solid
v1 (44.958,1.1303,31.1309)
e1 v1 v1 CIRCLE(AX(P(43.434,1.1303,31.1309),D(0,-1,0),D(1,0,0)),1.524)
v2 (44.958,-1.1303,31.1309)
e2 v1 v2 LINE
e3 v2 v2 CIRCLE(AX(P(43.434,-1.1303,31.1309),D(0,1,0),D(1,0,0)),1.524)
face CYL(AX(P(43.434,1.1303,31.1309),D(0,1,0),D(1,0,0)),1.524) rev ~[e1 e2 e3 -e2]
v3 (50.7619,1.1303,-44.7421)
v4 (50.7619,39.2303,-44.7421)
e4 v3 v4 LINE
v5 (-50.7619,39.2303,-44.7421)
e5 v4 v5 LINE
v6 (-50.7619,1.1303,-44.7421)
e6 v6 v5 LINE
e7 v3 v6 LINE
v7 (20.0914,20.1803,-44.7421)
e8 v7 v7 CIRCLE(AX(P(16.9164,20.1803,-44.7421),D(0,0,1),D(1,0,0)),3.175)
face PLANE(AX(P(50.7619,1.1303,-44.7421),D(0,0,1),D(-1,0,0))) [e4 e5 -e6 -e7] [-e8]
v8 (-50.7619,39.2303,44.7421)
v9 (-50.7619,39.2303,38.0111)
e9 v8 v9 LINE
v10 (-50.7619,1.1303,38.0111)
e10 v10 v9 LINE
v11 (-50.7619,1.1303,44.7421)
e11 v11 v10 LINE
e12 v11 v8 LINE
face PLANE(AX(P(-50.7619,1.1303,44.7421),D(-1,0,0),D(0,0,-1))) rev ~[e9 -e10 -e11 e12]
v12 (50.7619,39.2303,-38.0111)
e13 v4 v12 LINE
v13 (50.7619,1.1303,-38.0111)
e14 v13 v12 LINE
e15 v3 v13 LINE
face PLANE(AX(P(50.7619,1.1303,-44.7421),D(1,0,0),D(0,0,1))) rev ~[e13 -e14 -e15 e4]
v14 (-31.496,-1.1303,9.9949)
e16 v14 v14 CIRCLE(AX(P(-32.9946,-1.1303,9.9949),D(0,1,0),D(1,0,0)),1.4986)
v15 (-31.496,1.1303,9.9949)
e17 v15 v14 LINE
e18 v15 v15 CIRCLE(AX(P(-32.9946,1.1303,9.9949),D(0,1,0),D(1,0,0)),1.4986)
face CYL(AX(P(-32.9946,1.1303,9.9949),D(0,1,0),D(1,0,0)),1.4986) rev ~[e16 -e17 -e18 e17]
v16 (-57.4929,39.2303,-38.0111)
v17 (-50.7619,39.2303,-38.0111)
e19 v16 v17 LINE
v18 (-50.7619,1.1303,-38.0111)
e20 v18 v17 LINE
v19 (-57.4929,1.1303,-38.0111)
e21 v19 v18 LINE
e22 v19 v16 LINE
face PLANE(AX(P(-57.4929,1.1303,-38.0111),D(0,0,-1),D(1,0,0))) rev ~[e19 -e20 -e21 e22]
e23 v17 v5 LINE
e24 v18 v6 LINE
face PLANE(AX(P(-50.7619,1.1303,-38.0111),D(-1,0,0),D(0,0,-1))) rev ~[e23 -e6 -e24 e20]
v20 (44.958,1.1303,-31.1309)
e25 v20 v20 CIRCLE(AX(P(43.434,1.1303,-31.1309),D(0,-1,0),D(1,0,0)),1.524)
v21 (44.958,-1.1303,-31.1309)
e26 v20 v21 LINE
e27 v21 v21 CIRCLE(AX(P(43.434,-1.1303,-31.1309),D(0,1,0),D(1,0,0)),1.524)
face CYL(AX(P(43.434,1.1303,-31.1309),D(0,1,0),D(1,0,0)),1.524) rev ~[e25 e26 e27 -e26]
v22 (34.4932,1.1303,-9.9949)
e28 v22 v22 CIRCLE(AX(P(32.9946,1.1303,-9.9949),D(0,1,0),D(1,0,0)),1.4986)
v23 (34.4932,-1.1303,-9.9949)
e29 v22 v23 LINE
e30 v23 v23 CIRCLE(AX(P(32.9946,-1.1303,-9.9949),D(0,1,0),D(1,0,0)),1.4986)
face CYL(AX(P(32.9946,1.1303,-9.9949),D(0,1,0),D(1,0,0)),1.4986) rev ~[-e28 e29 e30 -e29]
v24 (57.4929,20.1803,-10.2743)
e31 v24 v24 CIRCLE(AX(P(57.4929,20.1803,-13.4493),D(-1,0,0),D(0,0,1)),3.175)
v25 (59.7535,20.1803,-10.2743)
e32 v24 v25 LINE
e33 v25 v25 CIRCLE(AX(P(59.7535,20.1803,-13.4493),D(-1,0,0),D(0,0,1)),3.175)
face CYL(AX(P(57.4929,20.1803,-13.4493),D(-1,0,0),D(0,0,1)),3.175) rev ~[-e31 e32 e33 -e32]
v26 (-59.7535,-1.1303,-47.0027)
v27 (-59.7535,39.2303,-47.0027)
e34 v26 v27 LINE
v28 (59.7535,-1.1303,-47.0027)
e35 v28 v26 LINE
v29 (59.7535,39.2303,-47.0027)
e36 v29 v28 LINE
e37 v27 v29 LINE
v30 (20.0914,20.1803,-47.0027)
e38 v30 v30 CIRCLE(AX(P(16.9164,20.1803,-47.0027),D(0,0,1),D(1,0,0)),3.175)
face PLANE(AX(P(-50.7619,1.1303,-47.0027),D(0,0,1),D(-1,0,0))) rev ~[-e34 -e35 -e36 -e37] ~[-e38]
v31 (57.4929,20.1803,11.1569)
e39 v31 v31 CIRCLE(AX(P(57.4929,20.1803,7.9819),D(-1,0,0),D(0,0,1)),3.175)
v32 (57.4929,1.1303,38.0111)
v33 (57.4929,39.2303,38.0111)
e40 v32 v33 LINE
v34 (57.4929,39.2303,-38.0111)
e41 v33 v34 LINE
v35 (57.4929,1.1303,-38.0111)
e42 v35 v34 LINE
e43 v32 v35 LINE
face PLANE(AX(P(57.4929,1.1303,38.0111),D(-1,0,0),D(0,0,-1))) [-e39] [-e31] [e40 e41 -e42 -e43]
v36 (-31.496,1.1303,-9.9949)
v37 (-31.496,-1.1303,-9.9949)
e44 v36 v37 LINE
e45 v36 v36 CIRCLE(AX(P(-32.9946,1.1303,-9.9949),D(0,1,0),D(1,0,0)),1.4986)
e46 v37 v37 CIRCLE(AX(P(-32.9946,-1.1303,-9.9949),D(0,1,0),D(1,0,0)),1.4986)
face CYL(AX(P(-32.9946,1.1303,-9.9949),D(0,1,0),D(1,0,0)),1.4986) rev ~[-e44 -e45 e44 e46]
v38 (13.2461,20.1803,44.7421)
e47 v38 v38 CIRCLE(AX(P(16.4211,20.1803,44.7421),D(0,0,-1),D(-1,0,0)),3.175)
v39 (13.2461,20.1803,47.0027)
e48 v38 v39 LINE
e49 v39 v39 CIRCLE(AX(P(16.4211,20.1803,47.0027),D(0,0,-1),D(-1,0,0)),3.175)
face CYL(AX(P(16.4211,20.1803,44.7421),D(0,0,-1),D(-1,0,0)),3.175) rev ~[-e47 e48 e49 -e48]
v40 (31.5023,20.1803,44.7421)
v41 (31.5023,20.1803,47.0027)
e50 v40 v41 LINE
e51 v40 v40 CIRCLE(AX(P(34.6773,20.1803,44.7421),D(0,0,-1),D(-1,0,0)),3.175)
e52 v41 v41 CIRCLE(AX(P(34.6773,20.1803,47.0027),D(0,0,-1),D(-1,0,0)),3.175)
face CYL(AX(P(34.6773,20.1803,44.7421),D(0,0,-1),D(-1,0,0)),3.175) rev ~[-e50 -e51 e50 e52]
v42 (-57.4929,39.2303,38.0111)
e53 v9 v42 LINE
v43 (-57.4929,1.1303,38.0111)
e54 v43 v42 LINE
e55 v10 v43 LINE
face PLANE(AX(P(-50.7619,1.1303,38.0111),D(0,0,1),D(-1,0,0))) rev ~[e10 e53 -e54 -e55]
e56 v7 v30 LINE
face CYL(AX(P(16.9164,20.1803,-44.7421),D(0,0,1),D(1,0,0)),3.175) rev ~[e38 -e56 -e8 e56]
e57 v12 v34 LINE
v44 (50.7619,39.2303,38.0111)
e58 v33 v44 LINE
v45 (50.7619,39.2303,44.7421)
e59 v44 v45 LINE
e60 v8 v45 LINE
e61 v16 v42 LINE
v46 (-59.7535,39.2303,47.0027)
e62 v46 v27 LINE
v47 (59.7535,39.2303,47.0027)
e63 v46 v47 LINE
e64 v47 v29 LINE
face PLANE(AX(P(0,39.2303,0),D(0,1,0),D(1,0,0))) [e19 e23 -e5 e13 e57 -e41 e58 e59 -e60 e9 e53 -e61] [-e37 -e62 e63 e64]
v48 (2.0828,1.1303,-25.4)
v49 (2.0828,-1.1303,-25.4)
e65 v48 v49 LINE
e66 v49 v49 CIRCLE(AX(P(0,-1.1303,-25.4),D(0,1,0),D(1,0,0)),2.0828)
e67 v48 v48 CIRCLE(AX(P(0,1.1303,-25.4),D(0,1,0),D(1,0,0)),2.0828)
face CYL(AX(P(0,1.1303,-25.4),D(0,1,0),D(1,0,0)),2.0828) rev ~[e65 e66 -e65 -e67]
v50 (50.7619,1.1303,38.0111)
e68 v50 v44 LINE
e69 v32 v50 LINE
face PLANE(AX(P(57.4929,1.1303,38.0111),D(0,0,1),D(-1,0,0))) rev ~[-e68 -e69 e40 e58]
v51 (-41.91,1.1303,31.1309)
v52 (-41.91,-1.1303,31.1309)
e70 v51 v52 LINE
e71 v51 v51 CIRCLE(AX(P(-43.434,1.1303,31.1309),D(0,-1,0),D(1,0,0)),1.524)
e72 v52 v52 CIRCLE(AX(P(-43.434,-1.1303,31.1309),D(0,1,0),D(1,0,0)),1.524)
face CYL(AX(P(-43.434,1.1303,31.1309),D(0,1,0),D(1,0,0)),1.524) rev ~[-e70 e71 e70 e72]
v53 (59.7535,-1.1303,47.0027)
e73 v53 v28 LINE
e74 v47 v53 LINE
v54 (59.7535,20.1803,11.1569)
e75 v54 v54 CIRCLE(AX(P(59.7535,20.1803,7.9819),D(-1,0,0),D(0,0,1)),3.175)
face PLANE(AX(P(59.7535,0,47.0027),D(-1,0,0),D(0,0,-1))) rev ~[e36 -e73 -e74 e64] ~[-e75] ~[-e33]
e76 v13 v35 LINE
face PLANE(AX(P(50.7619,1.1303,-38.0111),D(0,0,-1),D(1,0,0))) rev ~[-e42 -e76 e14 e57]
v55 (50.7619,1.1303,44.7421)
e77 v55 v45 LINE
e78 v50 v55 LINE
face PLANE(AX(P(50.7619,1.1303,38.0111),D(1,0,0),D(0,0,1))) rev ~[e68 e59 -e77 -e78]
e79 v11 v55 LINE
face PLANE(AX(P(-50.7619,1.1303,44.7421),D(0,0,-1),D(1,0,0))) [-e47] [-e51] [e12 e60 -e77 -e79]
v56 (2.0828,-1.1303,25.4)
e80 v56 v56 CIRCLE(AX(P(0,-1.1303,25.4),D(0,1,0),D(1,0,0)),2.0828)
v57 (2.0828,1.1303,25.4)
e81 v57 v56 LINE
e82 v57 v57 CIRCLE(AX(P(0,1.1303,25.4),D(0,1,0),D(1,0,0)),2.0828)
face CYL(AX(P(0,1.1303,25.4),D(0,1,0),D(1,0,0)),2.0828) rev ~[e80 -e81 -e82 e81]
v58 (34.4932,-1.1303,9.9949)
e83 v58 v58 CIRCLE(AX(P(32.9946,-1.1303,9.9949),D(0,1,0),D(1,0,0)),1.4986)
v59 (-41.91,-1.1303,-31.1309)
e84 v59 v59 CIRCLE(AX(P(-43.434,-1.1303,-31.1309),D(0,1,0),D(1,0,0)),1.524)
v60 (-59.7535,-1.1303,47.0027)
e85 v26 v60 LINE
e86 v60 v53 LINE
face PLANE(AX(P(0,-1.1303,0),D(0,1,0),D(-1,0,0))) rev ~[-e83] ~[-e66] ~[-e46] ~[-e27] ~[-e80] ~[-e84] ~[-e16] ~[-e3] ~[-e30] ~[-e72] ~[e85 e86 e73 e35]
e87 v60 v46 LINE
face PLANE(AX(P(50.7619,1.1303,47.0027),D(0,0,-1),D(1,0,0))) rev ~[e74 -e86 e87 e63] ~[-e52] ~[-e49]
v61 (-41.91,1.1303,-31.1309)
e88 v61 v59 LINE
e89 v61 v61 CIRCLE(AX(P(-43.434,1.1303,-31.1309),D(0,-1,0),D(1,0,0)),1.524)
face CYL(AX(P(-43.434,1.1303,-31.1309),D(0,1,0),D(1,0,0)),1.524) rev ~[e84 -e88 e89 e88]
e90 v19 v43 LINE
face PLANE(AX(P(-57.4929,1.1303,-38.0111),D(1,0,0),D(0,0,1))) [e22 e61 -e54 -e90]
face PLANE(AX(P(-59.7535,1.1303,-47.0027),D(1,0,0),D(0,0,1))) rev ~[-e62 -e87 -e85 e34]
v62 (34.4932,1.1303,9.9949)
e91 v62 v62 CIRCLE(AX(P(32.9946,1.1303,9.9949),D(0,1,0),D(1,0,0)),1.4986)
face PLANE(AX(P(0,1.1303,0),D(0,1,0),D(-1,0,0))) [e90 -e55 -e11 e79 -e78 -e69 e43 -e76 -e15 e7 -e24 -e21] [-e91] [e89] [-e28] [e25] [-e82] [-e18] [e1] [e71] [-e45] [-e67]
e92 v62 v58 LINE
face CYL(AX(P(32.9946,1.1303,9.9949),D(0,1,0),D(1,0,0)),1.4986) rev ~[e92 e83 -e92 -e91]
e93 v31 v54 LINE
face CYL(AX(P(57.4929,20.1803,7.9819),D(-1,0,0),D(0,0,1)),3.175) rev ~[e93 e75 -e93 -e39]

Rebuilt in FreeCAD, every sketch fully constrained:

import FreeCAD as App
import Part
import Sketcher
Q = App.Units.Quantity

doc = App.newDocument("Part")
body = doc.addObject("PartDesign::Body", "Body")

# Sketch on XZ plane
sketch1 = body.newObject("Sketcher::SketchObject", "Sketch")
sketch1.AttachmentSupport = (doc.getObject("XZ_Plane"), [""])
sketch1.MapMode = "FlatFace"
sketch1.addGeometry([
    Part.LineSegment(App.Vector(59.7535, 47.0027, 0), App.Vector(59.7535, -47.0027, 0)),
    Part.LineSegment(App.Vector(59.7535, -47.0027, 0), App.Vector(-59.7535, -47.0027, 0)),
    Part.LineSegment(App.Vector(-59.7535, -47.0027, 0), App.Vector(-59.7535, 47.0027, 0)),
    Part.LineSegment(App.Vector(-59.7535, 47.0027, 0), App.Vector(59.7535, 47.0027, 0)),
], False)
sketch1.addConstraint([
    Sketcher.Constraint("Coincident", 0, 2, 1, 1),
    Sketcher.Constraint("Coincident", 1, 2, 2, 1),
    Sketcher.Constraint("Coincident", 2, 2, 3, 1),
    Sketcher.Constraint("Coincident", 3, 2, 0, 1),
    Sketcher.Constraint("Vertical", 0),
    Sketcher.Constraint("Horizontal", 1),
    Sketcher.Constraint("Vertical", 2),
    Sketcher.Constraint("Horizontal", 3),
    Sketcher.Constraint("Symmetric", 0, 2, 2, 2, -1, 1),
    Sketcher.Constraint("DistanceX", 1, 2, 1, 1, Q("4.705 in")),
    Sketcher.Constraint("DistanceY", 0, 2, 0, 1, Q("3.701 in")),
])
pad1 = body.newObject("PartDesign::Pad", "Pad")
pad1.Profile = sketch1
pad1.Length = Q("0.089 in")
pad1.Midplane = True

# Sketch on XZ plane
sketch2 = body.newObject("Sketcher::SketchObject", "Sketch001")
sketch2.AttachmentSupport = (doc.getObject("XZ_Plane"), [""])
sketch2.MapMode = "FlatFace"
sketch2.AttachmentOffset = App.Placement(App.Vector(0, 0, -0.0445 * 25.4), App.Rotation())
sketch2.addGeometry([
    Part.LineSegment(App.Vector(59.7535, -47.0027, 0), App.Vector(-59.7535, -47.0027, 0)),  # 0
    Part.LineSegment(App.Vector(-59.7535, -47.0027, 0), App.Vector(-59.7535, 47.0027, 0)),  # 1
    Part.LineSegment(App.Vector(-59.7535, 47.0027, 0), App.Vector(59.7535, 47.0027, 0)),  # 2
    Part.LineSegment(App.Vector(59.7535, 47.0027, 0), App.Vector(59.7535, -47.0027, 0)),  # 3
    Part.LineSegment(App.Vector(50.7619, 44.7421, 0), App.Vector(-50.7619, 44.7421, 0)),  # 4
    Part.LineSegment(App.Vector(-50.7619, 44.7421, 0), App.Vector(-50.7619, 38.0111, 0)),  # 5
    Part.LineSegment(App.Vector(-50.7619, 38.0111, 0), App.Vector(-57.4929, 38.0111, 0)),  # 6
    Part.LineSegment(App.Vector(-57.4929, 38.0111, 0), App.Vector(-57.4929, -38.0111, 0)),  # 7
    Part.LineSegment(App.Vector(-57.4929, -38.0111, 0), App.Vector(-50.7619, -38.0111, 0)),  # 8
    Part.LineSegment(App.Vector(-50.7619, -38.0111, 0), App.Vector(-50.7619, -44.7421, 0)),  # 9
    Part.LineSegment(App.Vector(-50.7619, -44.7421, 0), App.Vector(50.7619, -44.7421, 0)),  # 10
    Part.LineSegment(App.Vector(50.7619, -44.7421, 0), App.Vector(50.7619, -38.0111, 0)),  # 11
    Part.LineSegment(App.Vector(50.7619, -38.0111, 0), App.Vector(57.4929, -38.0111, 0)),  # 12
    Part.LineSegment(App.Vector(57.4929, -38.0111, 0), App.Vector(57.4929, 38.0111, 0)),  # 13
    Part.LineSegment(App.Vector(57.4929, 38.0111, 0), App.Vector(50.7619, 38.0111, 0)),  # 14
    Part.LineSegment(App.Vector(50.7619, 38.0111, 0), App.Vector(50.7619, 44.7421, 0)),  # 15
], False)
sketch2.addConstraint([
    Sketcher.Constraint("Coincident", 0, 2, 1, 1),
    Sketcher.Constraint("Coincident", 1, 2, 2, 1),
    Sketcher.Constraint("Coincident", 2, 2, 3, 1),
    Sketcher.Constraint("Coincident", 3, 2, 0, 1),
    Sketcher.Constraint("Coincident", 4, 2, 5, 1),
    Sketcher.Constraint("Coincident", 5, 2, 6, 1),
    Sketcher.Constraint("Coincident", 6, 2, 7, 1),
    Sketcher.Constraint("Coincident", 7, 2, 8, 1),
    Sketcher.Constraint("Coincident", 8, 2, 9, 1),
    Sketcher.Constraint("Coincident", 9, 2, 10, 1),
    Sketcher.Constraint("Coincident", 10, 2, 11, 1),
    Sketcher.Constraint("Coincident", 11, 2, 12, 1),
    Sketcher.Constraint("Coincident", 12, 2, 13, 1),
    Sketcher.Constraint("Coincident", 13, 2, 14, 1),
    Sketcher.Constraint("Coincident", 14, 2, 15, 1),
    Sketcher.Constraint("Coincident", 15, 2, 4, 1),
    Sketcher.Constraint("Horizontal", 0),
    Sketcher.Constraint("Vertical", 1),
    Sketcher.Constraint("Horizontal", 2),
    Sketcher.Constraint("Vertical", 3),
    Sketcher.Constraint("Horizontal", 4),
    Sketcher.Constraint("Vertical", 5),
    Sketcher.Constraint("Horizontal", 6),
    Sketcher.Constraint("Vertical", 7),
    Sketcher.Constraint("Horizontal", 8),
    Sketcher.Constraint("Vertical", 9),
    Sketcher.Constraint("Horizontal", 10),
    Sketcher.Constraint("Vertical", 11),
    Sketcher.Constraint("Horizontal", 12),
    Sketcher.Constraint("Vertical", 13),
    Sketcher.Constraint("Horizontal", 14),
    Sketcher.Constraint("Vertical", 15),
    Sketcher.Constraint("Symmetric", 0, 2, 2, 2, -1, 1),
    Sketcher.Constraint("Symmetric", 4, 2, 10, 2, -1, 1),
    Sketcher.Constraint("Symmetric", 6, 2, 12, 2, -1, 1),
    Sketcher.Constraint("Symmetric", 8, 2, 14, 2, -1, 1),
    Sketcher.Constraint("Symmetric", 8, 2, 11, 2, -2),
    Sketcher.Constraint("Equal", 14, 5),
    Sketcher.Constraint("DistanceX", 1, 2, 4, 2, Q("0.354 in")),
    Sketcher.Constraint("DistanceY", 5, 2, 1, 2, Q("0.354 in")),
    Sketcher.Constraint("DistanceX", 0, 2, 0, 1, Q("4.705 in")),
    Sketcher.Constraint("DistanceX", 6, 2, 6, 1, Q("0.265 in")),
    Sketcher.Constraint("DistanceY", 1, 1, 1, 2, Q("3.701 in")),
])
pad2 = body.newObject("PartDesign::Pad", "Pad001")
pad2.Profile = sketch2
pad2.Length = Q("1.5 in")
pad2.Reversed = True

# Sketch on XZ plane
sketch3 = body.newObject("Sketcher::SketchObject", "Sketch002")
sketch3.AttachmentSupport = (doc.getObject("XZ_Plane"), [""])
sketch3.MapMode = "FlatFace"
sketch3.AttachmentOffset = App.Placement(App.Vector(0, 0, -0.0445 * 25.4), App.Rotation())
sketch3.addGeometry([
    Part.Circle(App.Vector(0, 25.4, 0), App.Vector(0, 0, 1), 2.0828),
    Part.Circle(App.Vector(0, -25.4, 0), App.Vector(0, 0, 1), 2.0828),
], False)
sketch3.addConstraint([
    Sketcher.Constraint("Equal", 0, 1),
    Sketcher.Constraint("Symmetric", 0, 3, 1, 3, -1, 1),
    Sketcher.Constraint("PointOnObject", 0, 3, -2),
    Sketcher.Constraint("Diameter", 0, Q("0.164 in")),
    Sketcher.Constraint("DistanceY", -1, 1, 0, 3, Q("1 in")),
])
pocket1 = body.newObject("PartDesign::Pocket", "Pocket")
pocket1.Profile = sketch3
pocket1.Type = "ThroughAll"
pocket1.Reversed = True

# Sketch on XY plane
sketch4 = body.newObject("Sketcher::SketchObject", "Sketch003")
sketch4.AttachmentSupport = (doc.getObject("XY_Plane"), [""])
sketch4.MapMode = "FlatFace"
sketch4.AttachmentOffset = App.Placement(App.Vector(0, 0, -1.7615 * 25.4), App.Rotation())
sketch4.addGeometry(Part.Circle(App.Vector(16.9164, 20.1803, 0), App.Vector(0, 0, 1), 3.175), False)
sketch4.addConstraint([
    Sketcher.Constraint("Diameter", 0, Q("0.25 in")),
    Sketcher.Constraint("DistanceX", -1, 1, 0, 3, Q("0.666 in")),
    Sketcher.Constraint("DistanceY", -1, 1, 0, 3, Q("0.7945 in")),
])
pocket2 = body.newObject("PartDesign::Pocket", "Pocket001")
pocket2.Profile = sketch4
pocket2.Type = "ThroughAll"

# Sketch on YZ plane
sketch5 = body.newObject("Sketcher::SketchObject", "Sketch004")
sketch5.AttachmentSupport = (doc.getObject("YZ_Plane"), [""])
sketch5.MapMode = "FlatFace"
sketch5.AttachmentOffset = App.Placement(App.Vector(0, 0, 2.2635 * 25.4), App.Rotation())
sketch5.addGeometry([
    Part.Circle(App.Vector(20.1803, -13.4493, 0), App.Vector(0, 0, 1), 3.175),
    Part.Circle(App.Vector(20.1803, 7.9819, 0), App.Vector(0, 0, 1), 3.175),
], False)
sketch5.addConstraint([
    Sketcher.Constraint("Equal", 0, 1),
    Sketcher.Constraint("Vertical", 0, 3, 1, 3),
    Sketcher.Constraint("Diameter", 0, Q("0.25 in")),
    Sketcher.Constraint("DistanceY", 0, 3, 1, 3, Q("0.843748 in")),
    Sketcher.Constraint("DistanceX", -1, 1, 0, 3, Q("0.7945 in")),
    Sketcher.Constraint("DistanceY", 0, 3, -1, 1, Q("0.5295 in")),
])
pocket3 = body.newObject("PartDesign::Pocket", "Pocket002")
pocket3.Profile = sketch5
pocket3.Type = "ThroughAll"
pocket3.Reversed = True

# Sketch on XY plane
sketch6 = body.newObject("Sketcher::SketchObject", "Sketch005")
sketch6.AttachmentSupport = (doc.getObject("XY_Plane"), [""])
sketch6.MapMode = "FlatFace"
sketch6.AttachmentOffset = App.Placement(App.Vector(0, 0, 1.7615 * 25.4), App.Rotation())
sketch6.addGeometry([
    Part.Circle(App.Vector(34.6773, 20.1803, 0), App.Vector(0, 0, 1), 3.175),
    Part.Circle(App.Vector(16.4211, 20.1803, 0), App.Vector(0, 0, 1), 3.175),
], False)
sketch6.addConstraint([
    Sketcher.Constraint("Equal", 0, 1),
    Sketcher.Constraint("Horizontal", 0, 3, 1, 3),
    Sketcher.Constraint("Diameter", 0, Q("0.25 in")),
    Sketcher.Constraint("DistanceX", 1, 3, 0, 3, Q("0.718748 in")),
    Sketcher.Constraint("DistanceY", -1, 1, 0, 3, Q("0.7945 in")),
    Sketcher.Constraint("DistanceX", -1, 1, 1, 3, Q("0.6465 in")),
])
pocket4 = body.newObject("PartDesign::Pocket", "Pocket003")
pocket4.Profile = sketch6
pocket4.Type = "ThroughAll"
pocket4.Reversed = True

# Sketch on XZ plane
sketch7 = body.newObject("Sketcher::SketchObject", "Sketch006")
sketch7.AttachmentSupport = (doc.getObject("XZ_Plane"), [""])
sketch7.MapMode = "FlatFace"
sketch7.AttachmentOffset = App.Placement(App.Vector(0, 0, -0.0445 * 25.4), App.Rotation())
sketch7.addGeometry([
    Part.Circle(App.Vector(-32.9946, 9.9949, 0), App.Vector(0, 0, 1), 1.4986),  # 0
    Part.Circle(App.Vector(-32.9946, -9.9949, 0), App.Vector(0, 0, 1), 1.4986),  # 1
    Part.Circle(App.Vector(32.9946, 9.9949, 0), App.Vector(0, 0, 1), 1.4986),  # 2
    Part.Circle(App.Vector(32.9946, -9.9949, 0), App.Vector(0, 0, 1), 1.4986),  # 3
    Part.Circle(App.Vector(-43.434, 31.1309, 0), App.Vector(0, 0, 1), 1.524),  # 4
    Part.Circle(App.Vector(43.434, 31.1309, 0), App.Vector(0, 0, 1), 1.524),  # 5
    Part.Circle(App.Vector(43.434, -31.1309, 0), App.Vector(0, 0, 1), 1.524),  # 6
    Part.Circle(App.Vector(-43.434, -31.1309, 0), App.Vector(0, 0, 1), 1.524),  # 7
], False)
sketch7.addConstraint([
    Sketcher.Constraint("Equal", 0, 1),
    Sketcher.Constraint("Equal", 1, 2),
    Sketcher.Constraint("Equal", 2, 3),
    Sketcher.Constraint("Equal", 4, 5),
    Sketcher.Constraint("Equal", 5, 6),
    Sketcher.Constraint("Equal", 6, 7),
    Sketcher.Constraint("Symmetric", 1, 3, 2, 3, -1, 1),
    Sketcher.Constraint("Symmetric", 0, 3, 3, 3, -1, 1),
    Sketcher.Constraint("Symmetric", 4, 3, 6, 3, -1, 1),
    Sketcher.Constraint("Symmetric", 5, 3, 7, 3, -1, 1),
    Sketcher.Constraint("Symmetric", 0, 3, 2, 3, -2),
    Sketcher.Constraint("Symmetric", 4, 3, 5, 3, -2),
    Sketcher.Constraint("Diameter", 4, Q("0.12 in")),
    Sketcher.Constraint("Diameter", 0, Q("0.118 in")),
    Sketcher.Constraint("DistanceY", 1, 3, 0, 3, Q("0.787 in")),
    Sketcher.Constraint("DistanceX", 0, 3, 2, 3, Q("2.598 in")),
    Sketcher.Constraint("DistanceX", 4, 3, -1, 1, Q("1.71 in")),
    Sketcher.Constraint("DistanceY", -1, 1, 4, 3, Q("31.131 mm")),
])
pocket5 = body.newObject("PartDesign::Pocket", "Pocket004")
pocket5.Profile = sketch7
pocket5.Type = "ThroughAll"
pocket5.Reversed = True

doc.recompute()
